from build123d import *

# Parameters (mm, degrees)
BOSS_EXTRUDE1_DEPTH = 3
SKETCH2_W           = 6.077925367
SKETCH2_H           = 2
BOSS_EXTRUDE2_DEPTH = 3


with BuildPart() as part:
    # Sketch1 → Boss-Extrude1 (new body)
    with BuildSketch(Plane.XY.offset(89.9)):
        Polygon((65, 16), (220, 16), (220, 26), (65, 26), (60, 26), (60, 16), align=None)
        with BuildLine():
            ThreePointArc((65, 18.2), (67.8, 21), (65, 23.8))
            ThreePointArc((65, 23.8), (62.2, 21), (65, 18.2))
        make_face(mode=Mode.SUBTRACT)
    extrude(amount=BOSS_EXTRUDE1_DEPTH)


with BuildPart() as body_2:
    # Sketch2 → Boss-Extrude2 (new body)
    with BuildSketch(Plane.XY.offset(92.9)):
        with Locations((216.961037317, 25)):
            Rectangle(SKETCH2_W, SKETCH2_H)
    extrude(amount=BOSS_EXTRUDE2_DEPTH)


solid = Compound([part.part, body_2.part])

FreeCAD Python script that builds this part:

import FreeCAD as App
import Part
import Sketcher
from FreeCAD import Vector
Q = App.Units.Quantity

doc = App.newDocument("Part")
body = doc.addObject("PartDesign::Body", "Body")

# Sketch on XY plane
sketch1 = body.newObject("Sketcher::SketchObject", "Sketch")
sketch1.AttachmentSupport = (doc.getObject("XY_Plane"), [""])
sketch1.MapMode = "FlatFace"
sketch1.AttachmentOffset = App.Placement(Vector(0, 0, 89.9), App.Rotation())
sketch1.addGeometry([
    Part.LineSegment(Vector(220, 16, 0), Vector(220, 26, 0)),  # 0
    Part.LineSegment(Vector(220, 26, 0), Vector(60, 26, 0)),  # 1
    Part.LineSegment(Vector(60, 26, 0), Vector(60, 16, 0)),  # 2
    Part.LineSegment(Vector(60, 16, 0), Vector(220, 16, 0)),  # 3
    Part.Circle(Vector(65, 21, 0), Vector(0, 0, 1), 2.8),  # 4
], False)
sketch1.addConstraint([
    Sketcher.Constraint("Coincident", 0, 2, 1, 1),
    Sketcher.Constraint("Coincident", 1, 2, 2, 1),
    Sketcher.Constraint("Coincident", 2, 2, 3, 1),
    Sketcher.Constraint("Coincident", 3, 2, 0, 1),
    Sketcher.Constraint("Vertical", 0),
    Sketcher.Constraint("Horizontal", 1),
    Sketcher.Constraint("Vertical", 2),
    Sketcher.Constraint("Horizontal", 3),
    Sketcher.Constraint("Diameter", 4, Q("5.6 mm")),
    Sketcher.Constraint("DistanceX", 1, 2, 1, 1, Q("160 mm")),
    Sketcher.Constraint("DistanceY", 0, 1, 0, 2, Q("10 mm")),
    Sketcher.Constraint("DistanceX", -1, 1, 4, 3, Q("65 mm")),
    Sketcher.Constraint("DistanceY", -1, 1, 4, 3, Q("21 mm")),
    Sketcher.Constraint("DistanceX", -1, 1, 0, 2, Q("220 mm")),
    Sketcher.Constraint("DistanceY", -1, 1, 0, 2, Q("26 mm")),
])
pad1 = body.newObject("PartDesign::Pad", "Pad")
pad1.Profile = sketch1
pad1.Length = 3
body2 = doc.addObject("PartDesign::Body", "Body001")

# Sketch on XY plane
sketch2 = body2.newObject("Sketcher::SketchObject", "Sketch001")
sketch2.AttachmentSupport = (doc.getObject("XY_Plane001"), [""])
sketch2.MapMode = "FlatFace"
sketch2.AttachmentOffset = App.Placement(Vector(0, 0, 92.9), App.Rotation())
sketch2.addGeometry([
    Part.LineSegment(Vector(213.922075, 26, 0), Vector(213.922075, 24, 0)),
    Part.LineSegment(Vector(213.922075, 24, 0), Vector(220, 24, 0)),
    Part.LineSegment(Vector(220, 24, 0), Vector(220, 26, 0)),
    Part.LineSegment(Vector(220, 26, 0), Vector(213.922075, 26, 0)),
], False)
sketch2.addConstraint([
    Sketcher.Constraint("Coincident", 0, 2, 1, 1),
    Sketcher.Constraint("Coincident", 1, 2, 2, 1),
    Sketcher.Constraint("Coincident", 2, 2, 3, 1),
    Sketcher.Constraint("Coincident", 3, 2, 0, 1),
    Sketcher.Constraint("Vertical", 0),
    Sketcher.Constraint("Horizontal", 1),
    Sketcher.Constraint("Vertical", 2),
    Sketcher.Constraint("Horizontal", 3),
    Sketcher.Constraint("DistanceY", 0, 2, 0, 1, Q("2 mm")),
    Sketcher.Constraint("DistanceY", -1, 1, 0, 2, Q("24 mm")),
    Sketcher.Constraint("DistanceX", -1, 1, 1, 2, Q("220 mm")),
    Sketcher.Constraint("DistanceX", 1, 1, 1, 2, Q("6.077925 mm")),
])
pad2 = body2.newObject("PartDesign::Pad", "Pad001")
pad2.Profile = sketch2
pad2.Length = 3

doc.recompute()
